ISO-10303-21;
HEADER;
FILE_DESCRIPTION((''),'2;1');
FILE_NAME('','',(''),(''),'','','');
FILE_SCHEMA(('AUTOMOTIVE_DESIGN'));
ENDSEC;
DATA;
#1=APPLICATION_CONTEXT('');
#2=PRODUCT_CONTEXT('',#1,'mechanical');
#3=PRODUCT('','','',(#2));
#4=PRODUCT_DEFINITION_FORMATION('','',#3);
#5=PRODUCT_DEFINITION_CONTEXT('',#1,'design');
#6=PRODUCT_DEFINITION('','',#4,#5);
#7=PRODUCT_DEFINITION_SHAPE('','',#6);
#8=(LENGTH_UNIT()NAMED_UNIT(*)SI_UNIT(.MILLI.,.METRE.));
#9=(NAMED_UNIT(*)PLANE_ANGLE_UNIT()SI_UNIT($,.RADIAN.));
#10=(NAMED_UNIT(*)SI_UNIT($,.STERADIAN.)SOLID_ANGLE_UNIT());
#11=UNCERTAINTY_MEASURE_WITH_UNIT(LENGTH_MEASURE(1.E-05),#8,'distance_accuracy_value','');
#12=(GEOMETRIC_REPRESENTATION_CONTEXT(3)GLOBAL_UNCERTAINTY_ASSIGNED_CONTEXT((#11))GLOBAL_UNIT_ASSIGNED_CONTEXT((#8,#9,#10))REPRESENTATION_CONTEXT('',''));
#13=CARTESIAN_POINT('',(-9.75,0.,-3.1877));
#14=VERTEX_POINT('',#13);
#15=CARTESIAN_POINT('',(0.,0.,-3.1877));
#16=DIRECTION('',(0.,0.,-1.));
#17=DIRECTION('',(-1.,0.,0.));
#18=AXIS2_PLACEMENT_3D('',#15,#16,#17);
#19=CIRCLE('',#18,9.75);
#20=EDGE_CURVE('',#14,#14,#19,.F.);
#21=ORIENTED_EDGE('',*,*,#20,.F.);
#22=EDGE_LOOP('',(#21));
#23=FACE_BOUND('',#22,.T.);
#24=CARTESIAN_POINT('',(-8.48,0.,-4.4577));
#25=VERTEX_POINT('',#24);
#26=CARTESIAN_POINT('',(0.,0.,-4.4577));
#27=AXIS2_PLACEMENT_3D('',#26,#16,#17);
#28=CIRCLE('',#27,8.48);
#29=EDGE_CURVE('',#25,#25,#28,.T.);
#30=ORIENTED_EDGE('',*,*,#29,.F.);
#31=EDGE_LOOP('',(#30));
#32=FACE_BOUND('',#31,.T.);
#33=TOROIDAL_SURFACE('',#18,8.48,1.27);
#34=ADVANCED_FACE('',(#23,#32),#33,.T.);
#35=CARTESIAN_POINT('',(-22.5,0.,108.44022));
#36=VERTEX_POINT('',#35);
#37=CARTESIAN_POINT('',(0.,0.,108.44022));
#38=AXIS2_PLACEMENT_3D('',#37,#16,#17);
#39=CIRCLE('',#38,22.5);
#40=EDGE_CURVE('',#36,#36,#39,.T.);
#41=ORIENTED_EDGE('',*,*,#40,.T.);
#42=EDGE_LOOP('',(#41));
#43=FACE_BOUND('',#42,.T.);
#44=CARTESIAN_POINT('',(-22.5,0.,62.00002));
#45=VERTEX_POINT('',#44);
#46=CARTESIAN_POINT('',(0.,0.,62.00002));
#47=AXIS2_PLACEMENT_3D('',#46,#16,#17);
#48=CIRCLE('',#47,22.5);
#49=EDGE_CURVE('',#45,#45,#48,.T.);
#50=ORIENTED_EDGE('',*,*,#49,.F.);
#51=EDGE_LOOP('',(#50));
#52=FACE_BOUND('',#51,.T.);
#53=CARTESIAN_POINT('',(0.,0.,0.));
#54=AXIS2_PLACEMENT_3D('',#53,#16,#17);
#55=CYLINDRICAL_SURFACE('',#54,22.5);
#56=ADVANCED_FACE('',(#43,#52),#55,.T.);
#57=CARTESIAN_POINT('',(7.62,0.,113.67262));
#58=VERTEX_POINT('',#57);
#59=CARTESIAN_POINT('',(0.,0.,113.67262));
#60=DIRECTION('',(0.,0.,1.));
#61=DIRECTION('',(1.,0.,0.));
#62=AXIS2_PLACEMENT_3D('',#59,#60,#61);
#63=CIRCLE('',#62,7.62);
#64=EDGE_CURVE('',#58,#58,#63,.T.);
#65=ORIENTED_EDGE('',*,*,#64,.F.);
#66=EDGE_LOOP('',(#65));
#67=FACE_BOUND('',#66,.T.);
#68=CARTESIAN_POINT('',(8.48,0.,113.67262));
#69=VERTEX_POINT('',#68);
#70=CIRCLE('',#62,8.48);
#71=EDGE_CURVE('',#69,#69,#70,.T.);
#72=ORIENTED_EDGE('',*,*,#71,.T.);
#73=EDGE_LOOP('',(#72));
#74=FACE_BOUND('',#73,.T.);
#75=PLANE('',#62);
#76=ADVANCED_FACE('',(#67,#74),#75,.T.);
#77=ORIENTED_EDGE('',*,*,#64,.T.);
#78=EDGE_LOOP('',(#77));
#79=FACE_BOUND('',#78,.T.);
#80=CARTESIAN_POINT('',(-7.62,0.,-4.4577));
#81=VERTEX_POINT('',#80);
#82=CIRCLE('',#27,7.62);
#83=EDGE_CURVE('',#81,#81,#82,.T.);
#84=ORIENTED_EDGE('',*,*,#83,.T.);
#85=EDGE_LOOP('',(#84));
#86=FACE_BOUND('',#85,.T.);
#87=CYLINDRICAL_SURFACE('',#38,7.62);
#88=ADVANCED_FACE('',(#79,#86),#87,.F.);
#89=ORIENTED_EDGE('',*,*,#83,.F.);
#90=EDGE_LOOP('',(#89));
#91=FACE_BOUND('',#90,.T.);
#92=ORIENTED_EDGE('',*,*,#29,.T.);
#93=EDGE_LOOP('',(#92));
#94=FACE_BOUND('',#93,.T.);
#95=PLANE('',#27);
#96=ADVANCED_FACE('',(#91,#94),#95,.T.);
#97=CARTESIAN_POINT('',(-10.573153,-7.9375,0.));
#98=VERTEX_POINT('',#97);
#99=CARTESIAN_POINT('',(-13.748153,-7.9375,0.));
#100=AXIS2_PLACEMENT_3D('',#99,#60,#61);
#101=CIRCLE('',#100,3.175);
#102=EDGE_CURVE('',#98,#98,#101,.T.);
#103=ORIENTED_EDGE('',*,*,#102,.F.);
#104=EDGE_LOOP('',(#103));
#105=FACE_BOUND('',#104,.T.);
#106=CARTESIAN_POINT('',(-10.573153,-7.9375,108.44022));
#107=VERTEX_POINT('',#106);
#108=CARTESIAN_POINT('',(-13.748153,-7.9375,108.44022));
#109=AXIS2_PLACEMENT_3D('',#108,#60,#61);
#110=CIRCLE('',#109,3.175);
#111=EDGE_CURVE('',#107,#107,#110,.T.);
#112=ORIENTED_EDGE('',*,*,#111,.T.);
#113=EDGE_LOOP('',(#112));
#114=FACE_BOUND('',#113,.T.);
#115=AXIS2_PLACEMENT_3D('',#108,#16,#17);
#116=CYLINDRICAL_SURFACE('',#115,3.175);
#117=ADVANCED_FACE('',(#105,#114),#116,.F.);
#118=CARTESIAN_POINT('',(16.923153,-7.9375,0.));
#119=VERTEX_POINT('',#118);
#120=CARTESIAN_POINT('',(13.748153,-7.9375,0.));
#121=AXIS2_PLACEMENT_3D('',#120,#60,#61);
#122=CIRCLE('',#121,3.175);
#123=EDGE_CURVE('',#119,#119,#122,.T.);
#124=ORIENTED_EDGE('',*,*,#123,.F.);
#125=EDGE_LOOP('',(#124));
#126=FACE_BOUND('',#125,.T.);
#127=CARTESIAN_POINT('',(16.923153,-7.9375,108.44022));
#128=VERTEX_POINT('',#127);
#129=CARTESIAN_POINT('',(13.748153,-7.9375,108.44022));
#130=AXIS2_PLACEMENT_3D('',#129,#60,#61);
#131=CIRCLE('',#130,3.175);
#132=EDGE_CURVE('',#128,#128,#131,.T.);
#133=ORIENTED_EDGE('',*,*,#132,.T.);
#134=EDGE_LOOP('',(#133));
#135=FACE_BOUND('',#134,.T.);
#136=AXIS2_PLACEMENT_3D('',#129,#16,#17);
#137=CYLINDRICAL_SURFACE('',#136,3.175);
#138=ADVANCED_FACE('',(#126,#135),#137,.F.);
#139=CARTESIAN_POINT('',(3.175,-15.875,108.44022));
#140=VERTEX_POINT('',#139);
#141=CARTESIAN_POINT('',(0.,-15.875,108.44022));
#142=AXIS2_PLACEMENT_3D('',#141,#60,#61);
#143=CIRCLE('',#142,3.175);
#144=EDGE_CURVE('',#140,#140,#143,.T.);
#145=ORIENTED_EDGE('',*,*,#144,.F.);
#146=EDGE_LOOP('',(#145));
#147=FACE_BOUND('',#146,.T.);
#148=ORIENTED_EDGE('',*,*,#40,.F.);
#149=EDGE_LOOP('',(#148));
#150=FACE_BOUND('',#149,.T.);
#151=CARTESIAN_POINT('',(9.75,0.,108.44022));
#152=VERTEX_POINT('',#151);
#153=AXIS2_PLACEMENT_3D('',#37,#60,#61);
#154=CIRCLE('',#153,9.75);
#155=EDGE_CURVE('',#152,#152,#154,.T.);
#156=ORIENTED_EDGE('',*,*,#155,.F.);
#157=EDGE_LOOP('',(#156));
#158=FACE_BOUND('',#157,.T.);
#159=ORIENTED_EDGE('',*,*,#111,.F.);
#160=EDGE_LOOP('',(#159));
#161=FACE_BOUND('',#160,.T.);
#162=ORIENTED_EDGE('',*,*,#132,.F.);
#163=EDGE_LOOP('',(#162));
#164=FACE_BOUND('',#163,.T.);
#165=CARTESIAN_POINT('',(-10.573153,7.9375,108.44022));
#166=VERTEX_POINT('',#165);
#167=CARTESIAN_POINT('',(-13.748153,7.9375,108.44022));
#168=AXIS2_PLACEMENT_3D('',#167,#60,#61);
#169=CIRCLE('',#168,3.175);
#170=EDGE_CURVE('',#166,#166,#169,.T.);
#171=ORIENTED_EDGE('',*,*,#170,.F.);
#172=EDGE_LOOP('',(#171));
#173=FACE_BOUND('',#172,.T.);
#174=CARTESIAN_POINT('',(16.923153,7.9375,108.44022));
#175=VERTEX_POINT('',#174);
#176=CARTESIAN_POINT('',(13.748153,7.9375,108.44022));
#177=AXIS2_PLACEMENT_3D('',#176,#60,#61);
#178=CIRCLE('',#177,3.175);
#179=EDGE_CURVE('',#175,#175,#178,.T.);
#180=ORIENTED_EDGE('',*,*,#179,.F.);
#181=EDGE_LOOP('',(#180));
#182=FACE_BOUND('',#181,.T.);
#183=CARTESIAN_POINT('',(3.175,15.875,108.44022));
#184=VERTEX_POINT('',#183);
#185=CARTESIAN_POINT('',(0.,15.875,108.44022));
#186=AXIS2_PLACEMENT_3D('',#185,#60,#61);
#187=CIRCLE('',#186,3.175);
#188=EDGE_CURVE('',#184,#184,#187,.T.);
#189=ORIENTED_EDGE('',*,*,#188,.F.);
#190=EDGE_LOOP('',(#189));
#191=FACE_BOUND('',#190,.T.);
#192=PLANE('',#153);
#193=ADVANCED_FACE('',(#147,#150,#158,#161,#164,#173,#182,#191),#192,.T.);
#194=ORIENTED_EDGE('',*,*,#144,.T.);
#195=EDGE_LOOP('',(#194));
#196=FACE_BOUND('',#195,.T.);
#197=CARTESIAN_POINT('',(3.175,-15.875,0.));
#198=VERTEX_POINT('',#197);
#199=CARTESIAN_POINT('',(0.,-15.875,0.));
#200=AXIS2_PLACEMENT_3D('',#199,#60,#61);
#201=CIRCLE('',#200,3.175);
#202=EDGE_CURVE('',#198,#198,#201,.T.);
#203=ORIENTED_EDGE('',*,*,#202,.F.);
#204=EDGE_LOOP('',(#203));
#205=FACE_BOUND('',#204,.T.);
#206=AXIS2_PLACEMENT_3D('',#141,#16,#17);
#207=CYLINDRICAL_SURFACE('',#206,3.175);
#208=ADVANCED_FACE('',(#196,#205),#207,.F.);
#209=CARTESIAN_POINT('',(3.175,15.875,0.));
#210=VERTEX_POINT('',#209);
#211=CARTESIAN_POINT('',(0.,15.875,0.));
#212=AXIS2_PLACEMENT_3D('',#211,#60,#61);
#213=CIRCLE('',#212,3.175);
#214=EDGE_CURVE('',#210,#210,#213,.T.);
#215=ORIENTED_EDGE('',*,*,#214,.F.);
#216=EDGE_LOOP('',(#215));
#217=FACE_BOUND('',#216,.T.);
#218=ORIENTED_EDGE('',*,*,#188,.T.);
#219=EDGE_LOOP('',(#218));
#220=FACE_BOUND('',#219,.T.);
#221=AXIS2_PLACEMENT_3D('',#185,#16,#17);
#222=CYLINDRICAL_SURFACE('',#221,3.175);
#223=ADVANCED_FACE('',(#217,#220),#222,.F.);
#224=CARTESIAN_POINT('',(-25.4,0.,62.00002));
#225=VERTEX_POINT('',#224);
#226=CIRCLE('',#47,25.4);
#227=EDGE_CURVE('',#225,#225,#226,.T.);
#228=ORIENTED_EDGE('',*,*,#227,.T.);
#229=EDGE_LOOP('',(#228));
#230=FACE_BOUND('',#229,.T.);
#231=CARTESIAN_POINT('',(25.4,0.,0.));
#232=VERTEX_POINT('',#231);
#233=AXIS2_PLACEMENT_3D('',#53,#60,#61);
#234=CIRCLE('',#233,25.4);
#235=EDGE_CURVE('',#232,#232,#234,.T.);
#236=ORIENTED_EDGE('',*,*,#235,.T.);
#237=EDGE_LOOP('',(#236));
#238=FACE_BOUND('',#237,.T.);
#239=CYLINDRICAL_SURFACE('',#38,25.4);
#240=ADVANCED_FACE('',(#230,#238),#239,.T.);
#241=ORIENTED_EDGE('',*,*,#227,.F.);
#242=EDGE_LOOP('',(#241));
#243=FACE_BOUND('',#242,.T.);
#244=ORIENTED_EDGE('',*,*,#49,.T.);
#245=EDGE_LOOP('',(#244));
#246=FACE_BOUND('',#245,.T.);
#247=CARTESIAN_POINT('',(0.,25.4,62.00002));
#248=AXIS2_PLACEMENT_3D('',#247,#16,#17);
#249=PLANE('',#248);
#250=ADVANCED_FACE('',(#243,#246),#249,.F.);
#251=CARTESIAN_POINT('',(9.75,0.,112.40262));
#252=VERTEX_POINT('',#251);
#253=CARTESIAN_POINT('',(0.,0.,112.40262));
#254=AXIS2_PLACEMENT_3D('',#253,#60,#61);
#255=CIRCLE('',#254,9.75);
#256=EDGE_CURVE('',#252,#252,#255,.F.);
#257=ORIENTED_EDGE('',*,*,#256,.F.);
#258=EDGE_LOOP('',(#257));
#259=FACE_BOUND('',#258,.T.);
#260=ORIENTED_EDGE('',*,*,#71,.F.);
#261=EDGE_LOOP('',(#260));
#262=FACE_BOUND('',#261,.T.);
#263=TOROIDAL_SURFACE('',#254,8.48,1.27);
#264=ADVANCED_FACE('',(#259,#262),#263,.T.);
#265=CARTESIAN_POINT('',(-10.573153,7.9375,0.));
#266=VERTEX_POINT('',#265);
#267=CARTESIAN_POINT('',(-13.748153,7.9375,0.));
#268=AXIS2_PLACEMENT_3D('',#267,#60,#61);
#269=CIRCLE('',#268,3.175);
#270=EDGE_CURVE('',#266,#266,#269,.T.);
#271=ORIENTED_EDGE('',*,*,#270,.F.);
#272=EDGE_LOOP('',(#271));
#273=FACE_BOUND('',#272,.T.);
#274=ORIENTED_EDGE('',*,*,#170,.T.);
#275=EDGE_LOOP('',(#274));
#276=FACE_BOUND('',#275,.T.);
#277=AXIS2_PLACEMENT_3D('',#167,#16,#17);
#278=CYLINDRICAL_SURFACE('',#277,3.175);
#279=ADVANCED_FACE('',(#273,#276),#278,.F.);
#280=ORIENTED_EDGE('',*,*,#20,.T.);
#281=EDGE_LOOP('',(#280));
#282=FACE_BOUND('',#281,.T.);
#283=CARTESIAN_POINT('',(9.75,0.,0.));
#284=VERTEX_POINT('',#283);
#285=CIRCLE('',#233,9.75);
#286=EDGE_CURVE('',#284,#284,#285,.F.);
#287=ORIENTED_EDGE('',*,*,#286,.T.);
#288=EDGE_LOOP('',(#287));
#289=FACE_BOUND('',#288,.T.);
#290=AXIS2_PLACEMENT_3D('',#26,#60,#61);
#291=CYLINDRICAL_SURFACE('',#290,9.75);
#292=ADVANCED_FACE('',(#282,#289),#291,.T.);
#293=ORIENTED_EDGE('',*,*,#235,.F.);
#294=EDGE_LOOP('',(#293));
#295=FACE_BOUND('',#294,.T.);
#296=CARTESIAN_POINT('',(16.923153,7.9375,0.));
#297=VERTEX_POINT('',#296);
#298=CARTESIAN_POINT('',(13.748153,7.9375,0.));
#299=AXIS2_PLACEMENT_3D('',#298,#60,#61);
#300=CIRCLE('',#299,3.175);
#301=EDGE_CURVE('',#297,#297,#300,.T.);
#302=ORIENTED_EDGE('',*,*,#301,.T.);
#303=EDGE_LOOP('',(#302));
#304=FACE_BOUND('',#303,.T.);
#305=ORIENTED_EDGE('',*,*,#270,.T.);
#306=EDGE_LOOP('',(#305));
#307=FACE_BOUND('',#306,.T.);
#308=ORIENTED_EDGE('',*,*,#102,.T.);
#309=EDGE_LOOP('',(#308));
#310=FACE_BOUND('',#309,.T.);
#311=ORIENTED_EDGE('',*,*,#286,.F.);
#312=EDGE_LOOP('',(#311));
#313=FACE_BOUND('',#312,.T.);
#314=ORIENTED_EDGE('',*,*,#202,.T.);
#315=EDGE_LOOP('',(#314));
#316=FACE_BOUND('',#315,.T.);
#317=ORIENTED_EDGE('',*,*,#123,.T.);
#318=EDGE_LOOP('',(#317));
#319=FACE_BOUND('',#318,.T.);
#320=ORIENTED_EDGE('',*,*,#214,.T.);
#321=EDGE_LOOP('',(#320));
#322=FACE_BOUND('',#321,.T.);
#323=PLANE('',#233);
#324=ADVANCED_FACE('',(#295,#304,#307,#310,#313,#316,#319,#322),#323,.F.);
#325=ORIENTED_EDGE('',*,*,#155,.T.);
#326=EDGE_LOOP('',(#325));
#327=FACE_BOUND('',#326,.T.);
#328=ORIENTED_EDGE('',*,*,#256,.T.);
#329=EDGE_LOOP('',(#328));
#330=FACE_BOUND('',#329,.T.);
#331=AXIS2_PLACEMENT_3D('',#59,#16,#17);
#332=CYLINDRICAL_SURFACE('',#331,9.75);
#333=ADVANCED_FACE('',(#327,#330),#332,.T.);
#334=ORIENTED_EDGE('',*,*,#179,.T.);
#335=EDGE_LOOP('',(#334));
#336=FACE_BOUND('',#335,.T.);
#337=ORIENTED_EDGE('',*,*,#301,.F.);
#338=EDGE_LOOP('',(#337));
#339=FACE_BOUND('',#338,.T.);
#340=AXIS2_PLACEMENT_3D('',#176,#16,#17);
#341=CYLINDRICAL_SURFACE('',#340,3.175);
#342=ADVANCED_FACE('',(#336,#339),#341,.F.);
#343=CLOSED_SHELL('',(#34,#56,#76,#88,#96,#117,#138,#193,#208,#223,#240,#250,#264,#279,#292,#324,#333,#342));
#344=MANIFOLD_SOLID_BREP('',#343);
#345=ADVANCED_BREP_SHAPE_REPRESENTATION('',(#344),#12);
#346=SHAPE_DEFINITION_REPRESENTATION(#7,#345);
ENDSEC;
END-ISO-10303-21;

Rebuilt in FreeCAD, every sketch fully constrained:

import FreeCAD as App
import Part
import Sketcher
Q = App.Units.Quantity


def edges_at(feature, points):
    """Names of the edges that pass closest to the given points."""
    edges = feature.Shape.Edges
    near = lambda p: min(range(len(edges)), key=lambda i: edges[i].distToShape(Part.Vertex(*p))[0])
    return sorted({f"Edge{near(p) + 1}" for p in points})


def add_polygon(sketch, points):
    """Adds a closed chain of lines whose ends are joined by coincident constraints."""
    first, n = sketch.GeometryCount, len(points)
    for a, b in zip(points, points[1:] + points[:1]):
        sketch.addGeometry(Part.LineSegment(App.Vector(*a, 0), App.Vector(*b, 0)), False)
    for i in range(n):
        sketch.addConstraint(Sketcher.Constraint("Coincident", first + i, 2, first + (i + 1) % n, 1))

doc = App.newDocument("Part")
body = doc.addObject("PartDesign::Body", "Body")

sketch1 = body.newObject("Sketcher::SketchObject", "Sketch")
sketch1.AttachmentSupport = (doc.getObject("XY_Plane"), [""])
sketch1.MapMode = "FlatFace"
sketch1.addGeometry([
    Part.Circle(App.Vector(0, 0, 0), App.Vector(0, 0, 1), 25.4),
    Part.Circle(App.Vector(-13.7, -7.9, 0), App.Vector(0, 0, 1), 3.2),
    Part.Circle(App.Vector(0, -15.9, 0), App.Vector(0, 0, 1), 3.2),
    Part.Circle(App.Vector(13.7, -7.9, 0), App.Vector(0, 0, 1), 3.2),
    Part.Circle(App.Vector(-13.7, 7.9, 0), App.Vector(0, 0, 1), 3.2),
    Part.Circle(App.Vector(0, 0, 0), App.Vector(0, 0, 1), 7.6),
    Part.Circle(App.Vector(13.7, 7.9, 0), App.Vector(0, 0, 1), 3.2),
    Part.Circle(App.Vector(0, 15.9, 0), App.Vector(0, 0, 1), 3.2),
], False)
sketch1.addConstraint([
    Sketcher.Constraint("Coincident", 0, 3, -1, 1),
    Sketcher.Constraint("Coincident", 5, 3, -1, 1),
    Sketcher.Constraint("Equal", 1, 2),
    Sketcher.Constraint("Equal", 2, 3),
    Sketcher.Constraint("Equal", 3, 4),
    Sketcher.Constraint("Equal", 4, 6),
    Sketcher.Constraint("Equal", 6, 7),
    Sketcher.Constraint("Symmetric", 3, 3, 4, 3, -1, 1),
    Sketcher.Constraint("Symmetric", 1, 3, 6, 3, -1, 1),
    Sketcher.Constraint("Symmetric", 2, 3, 7, 3, -1, 1),
    Sketcher.Constraint("Symmetric", 1, 3, 3, 3, -2),
    Sketcher.Constraint("PointOnObject", 2, 3, -2),
    Sketcher.Constraint("Diameter", 0, Q("2 in")),
    Sketcher.Constraint("Diameter", 5, Q("0.6 in")),
    Sketcher.Constraint("Diameter", 1, Q("0.25 in")),
    Sketcher.Constraint("DistanceY", 1, 3, -1, 1, Q("0.3125 in")),
    Sketcher.Constraint("DistanceY", 2, 3, -1, 1, Q("0.625 in")),
    Sketcher.Constraint("DistanceX", 1, 3, -1, 1, 13.748153),
])
pad1 = body.newObject("PartDesign::Pad", "Pad")
pad1.Profile = sketch1
pad1.Length = Q("4.2693 in")

sketch2 = body.newObject("Sketcher::SketchObject", "Sketch001")
sketch2.AttachmentSupport = (doc.getObject("XY_Plane"), [""])
sketch2.MapMode = "FlatFace"
sketch2.AttachmentOffset = App.Placement(App.Vector(0, 0, 4.2693 * 25.4), App.Rotation())
sketch2.addGeometry([
    Part.Circle(App.Vector(0, 0, 0), App.Vector(0, 0, 1), 10),
    Part.Circle(App.Vector(0, 0, 0), App.Vector(0, 0, 1), 8),
], False)
sketch2.addConstraint([
    Sketcher.Constraint("Coincident", 0, 3, -1, 1),
    Sketcher.Constraint("Coincident", 1, 3, -1, 1),
    Sketcher.Constraint("Diameter", 1, Q("0.6 in")),
    Sketcher.Constraint("Diameter", 0, 19.5),
])
pad2 = body.newObject("PartDesign::Pad", "Pad001")
pad2.Profile = sketch2
pad2.Length = Q("0.206 in")

sketch3 = body.newObject("Sketcher::SketchObject", "Sketch002")
sketch3.AttachmentSupport = (doc.getObject("XY_Plane"), [""])
sketch3.MapMode = "FlatFace"
sketch3.AttachmentOffset = App.Placement(App.Vector(0, 0, -0.1755 * 25.4), App.Rotation())
sketch3.addGeometry([
    Part.Circle(App.Vector(0, 0, 0), App.Vector(0, 0, 1), 10),
    Part.Circle(App.Vector(0, 0, 0), App.Vector(0, 0, 1), 8),
], False)
sketch3.addConstraint([
    Sketcher.Constraint("Coincident", 0, 3, -1, 1),
    Sketcher.Constraint("Coincident", 1, 3, -1, 1),
    Sketcher.Constraint("Diameter", 1, Q("0.6 in")),
    Sketcher.Constraint("Diameter", 0, 19.5),
])
pad3 = body.newObject("PartDesign::Pad", "Pad002")
pad3.Profile = sketch3
pad3.Length = Q("0.1755 in")
doc.recompute()

fillet = body.newObject("PartDesign::Fillet", "Fillet")
fillet.Base = (pad3, edges_at(pad3, [(-9.75, 0, -4.458)]))
fillet.Radius = Q("0.05 in")
doc.recompute()

fillet2 = body.newObject("PartDesign::Fillet", "Fillet001")
fillet2.Base = (fillet, edges_at(fillet, [(-9.75, 0, 113.673)]))
fillet2.Radius = Q("0.05 in")

sketch4 = body.newObject("Sketcher::SketchObject", "Sketch003")
sketch4.AttachmentSupport = (doc.getObject("YZ_Plane"), [""])
sketch4.MapMode = "FlatFace"
add_polygon(sketch4, [(25.4, 108.4), (22.5, 108.4), (22.5, 62), (25.4, 62)])
sketch4.addConstraint([
    Sketcher.Constraint("Horizontal", 0),
    Sketcher.Constraint("Vertical", 1),
    Sketcher.Constraint("Horizontal", 2),
    Sketcher.Constraint("Vertical", 3),
    Sketcher.Constraint("DistanceX", -1, 1, 2, 2, Q("1 in")),
    Sketcher.Constraint("DistanceX", 0, 2, 0, 1, 2.9),
    Sketcher.Constraint("DistanceY", 1, 2, 1, 1, 46.4402),
    Sketcher.Constraint("DistanceY", -1, 1, 0, 2, Q("4.2693 in")),
])
groove = body.newObject("PartDesign::Groove", "Groove")
groove.Profile = sketch4
groove.ReferenceAxis = (sketch4, ["V_Axis"])
groove.Angle = 360

doc.recompute()
